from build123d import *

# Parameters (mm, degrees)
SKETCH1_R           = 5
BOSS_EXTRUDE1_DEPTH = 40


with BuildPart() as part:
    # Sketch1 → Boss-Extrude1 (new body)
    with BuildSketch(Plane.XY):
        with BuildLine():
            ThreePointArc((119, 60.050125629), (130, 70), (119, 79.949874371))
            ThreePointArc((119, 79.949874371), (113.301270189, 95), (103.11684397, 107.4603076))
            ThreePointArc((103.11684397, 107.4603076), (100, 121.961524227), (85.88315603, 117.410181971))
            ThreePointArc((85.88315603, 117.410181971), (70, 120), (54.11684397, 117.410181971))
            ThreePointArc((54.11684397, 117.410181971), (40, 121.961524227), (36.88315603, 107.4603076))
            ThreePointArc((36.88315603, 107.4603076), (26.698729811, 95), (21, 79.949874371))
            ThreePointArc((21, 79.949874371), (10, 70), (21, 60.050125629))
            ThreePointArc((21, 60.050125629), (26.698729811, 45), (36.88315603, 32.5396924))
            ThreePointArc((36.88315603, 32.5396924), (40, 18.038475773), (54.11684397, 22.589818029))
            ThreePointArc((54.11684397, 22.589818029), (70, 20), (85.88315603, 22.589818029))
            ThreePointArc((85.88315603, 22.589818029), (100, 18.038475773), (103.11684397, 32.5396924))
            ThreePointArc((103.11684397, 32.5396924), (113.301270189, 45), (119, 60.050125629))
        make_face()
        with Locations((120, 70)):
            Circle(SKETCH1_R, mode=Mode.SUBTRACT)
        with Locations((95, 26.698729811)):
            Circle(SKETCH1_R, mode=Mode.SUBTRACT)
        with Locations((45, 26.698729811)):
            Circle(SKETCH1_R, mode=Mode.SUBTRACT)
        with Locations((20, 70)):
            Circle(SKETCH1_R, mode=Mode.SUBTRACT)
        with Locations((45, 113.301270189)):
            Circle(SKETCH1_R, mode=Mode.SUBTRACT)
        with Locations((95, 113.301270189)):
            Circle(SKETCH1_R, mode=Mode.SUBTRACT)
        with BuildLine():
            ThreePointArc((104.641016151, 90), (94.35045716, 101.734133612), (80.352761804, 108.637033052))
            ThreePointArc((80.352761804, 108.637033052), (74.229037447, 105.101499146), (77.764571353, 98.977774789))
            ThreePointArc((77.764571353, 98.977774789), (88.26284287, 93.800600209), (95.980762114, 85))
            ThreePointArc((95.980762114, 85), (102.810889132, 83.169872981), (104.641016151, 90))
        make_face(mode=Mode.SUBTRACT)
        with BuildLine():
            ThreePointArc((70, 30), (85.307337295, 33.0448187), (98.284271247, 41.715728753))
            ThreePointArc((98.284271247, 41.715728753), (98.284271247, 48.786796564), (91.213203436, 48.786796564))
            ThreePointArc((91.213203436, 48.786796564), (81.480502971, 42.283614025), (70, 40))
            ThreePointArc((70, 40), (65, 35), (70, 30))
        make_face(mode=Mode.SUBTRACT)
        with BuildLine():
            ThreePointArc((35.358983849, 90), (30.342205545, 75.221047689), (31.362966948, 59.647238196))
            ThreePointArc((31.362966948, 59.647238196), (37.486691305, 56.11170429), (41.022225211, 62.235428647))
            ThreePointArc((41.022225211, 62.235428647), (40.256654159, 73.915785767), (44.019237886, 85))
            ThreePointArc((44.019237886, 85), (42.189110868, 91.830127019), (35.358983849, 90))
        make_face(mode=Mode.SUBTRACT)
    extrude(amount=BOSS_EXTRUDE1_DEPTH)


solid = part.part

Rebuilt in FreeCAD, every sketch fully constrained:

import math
import FreeCAD as App
import Part
import Sketcher

V = App.Vector

doc = App.newDocument("Part")
body = doc.addObject("PartDesign::Body", "Body")

sketch1 = doc.addObject("Sketcher::SketchObject", "Sketch")
body.addObject(sketch1)
sketch1.AttachmentSupport = (doc.XY_Plane, [""])
sketch1.MapMode = "FlatFace"
sketch1.addGeometry(Part.ArcOfCircle(Part.Circle(V(120, 70, 0), V(0, 0, 1), 10), math.radians(-96), math.radians(96)), False)
sketch1.addGeometry(Part.ArcOfCircle(Part.Circle(V(70, 70, 0), V(0, 0, 1), 50), math.radians(11), math.radians(49)), False)
sketch1.addGeometry(Part.ArcOfCircle(Part.Circle(V(95, 113.3, 0), V(0, 0, 1), 10), math.radians(-36), math.radians(156)), False)
sketch1.addGeometry(Part.ArcOfCircle(Part.Circle(V(70, 70, 0), V(0, 0, 1), 50), math.radians(71), math.radians(109)), False)
sketch1.addGeometry(Part.ArcOfCircle(Part.Circle(V(45, 113.3, 0), V(0, 0, 1), 10), math.radians(24), math.radians(216)), False)
sketch1.addGeometry(Part.ArcOfCircle(Part.Circle(V(70, 70, 0), V(0, 0, 1), 50), math.radians(131), math.radians(169)), False)
sketch1.addGeometry(Part.ArcOfCircle(Part.Circle(V(20, 70, 0), V(0, 0, 1), 10), math.radians(84), math.radians(276)), False)
sketch1.addGeometry(Part.ArcOfCircle(Part.Circle(V(70, 70, 0), V(0, 0, 1), 50), math.radians(-169), math.radians(-131)), False)
sketch1.addGeometry(Part.ArcOfCircle(Part.Circle(V(45, 26.7, 0), V(0, 0, 1), 10), math.radians(144), math.radians(336)), False)
sketch1.addGeometry(Part.ArcOfCircle(Part.Circle(V(70, 70, 0), V(0, 0, 1), 50), math.radians(-109), math.radians(-71)), False)
sketch1.addGeometry(Part.ArcOfCircle(Part.Circle(V(95, 26.7, 0), V(0, 0, 1), 10), math.radians(-156), math.radians(36)), False)
sketch1.addGeometry(Part.ArcOfCircle(Part.Circle(V(70, 70, 0), V(0, 0, 1), 50), math.radians(-49), math.radians(-11)), False)
sketch1.addGeometry(Part.Circle(V(45, 26.7, 0), V(0, 0, 1), 5), False)
sketch1.addGeometry(Part.Circle(V(95, 26.7, 0), V(0, 0, 1), 5), False)
sketch1.addGeometry(Part.ArcOfCircle(Part.Circle(V(70, 70, 0), V(0, 0, 1), 40), math.radians(-90), math.radians(-45)), False)
sketch1.addGeometry(Part.ArcOfCircle(Part.Circle(V(70, 35, 0), V(0, 0, 1), 5), math.radians(90), math.radians(270)), False)
sketch1.addGeometry(Part.ArcOfCircle(Part.Circle(V(70, 70, 0), V(0, 0, 1), 30), math.radians(-90), math.radians(-45)), False)
sketch1.addGeometry(Part.ArcOfCircle(Part.Circle(V(94.7, 45.3, 0), V(0, 0, 1), 5), math.radians(-45), math.radians(135)), False)
sketch1.addGeometry(Part.Circle(V(20, 70, 0), V(0, 0, 1), 5), False)
sketch1.addGeometry(Part.ArcOfCircle(Part.Circle(V(70, 70, 0), V(0, 0, 1), 40), math.radians(150), math.radians(195)), False)
sketch1.addGeometry(Part.ArcOfCircle(Part.Circle(V(39.7, 87.5, 0), V(0, 0, 1), 5), math.radians(-30), math.radians(150)), False)
sketch1.addGeometry(Part.ArcOfCircle(Part.Circle(V(70, 70, 0), V(0, 0, 1), 30), math.radians(150), math.radians(195)), False)
sketch1.addGeometry(Part.ArcOfCircle(Part.Circle(V(36.2, 60.9, 0), V(0, 0, 1), 5), math.radians(-165), math.radians(15)), False)
sketch1.addGeometry(Part.Circle(V(45, 113.3, 0), V(0, 0, 1), 5), False)
sketch1.addGeometry(Part.Circle(V(120, 70, 0), V(0, 0, 1), 5), False)
sketch1.addGeometry(Part.ArcOfCircle(Part.Circle(V(70, 70, 0), V(0, 0, 1), 40), math.radians(30), math.radians(75)), False)
sketch1.addGeometry(Part.ArcOfCircle(Part.Circle(V(100.3, 87.5, 0), V(0, 0, 1), 5), math.radians(-150), math.radians(30)), False)
sketch1.addGeometry(Part.ArcOfCircle(Part.Circle(V(70, 70, 0), V(0, 0, 1), 30), math.radians(30), math.radians(75)), False)
sketch1.addGeometry(Part.ArcOfCircle(Part.Circle(V(79.1, 103.8, 0), V(0, 0, 1), 5), math.radians(75), math.radians(255)), False)
sketch1.addGeometry(Part.Circle(V(95, 113.3, 0), V(0, 0, 1), 5), False)
sketch1.addConstraint(Sketcher.Constraint("Coincident", 0, 2, 1, 1))
sketch1.addConstraint(Sketcher.Constraint("Coincident", 1, 2, 2, 1))
sketch1.addConstraint(Sketcher.Constraint("Coincident", 2, 2, 3, 1))
sketch1.addConstraint(Sketcher.Constraint("Coincident", 3, 2, 4, 1))
sketch1.addConstraint(Sketcher.Constraint("Coincident", 4, 2, 5, 1))
sketch1.addConstraint(Sketcher.Constraint("Coincident", 5, 2, 6, 1))
sketch1.addConstraint(Sketcher.Constraint("Coincident", 6, 2, 7, 1))
sketch1.addConstraint(Sketcher.Constraint("Coincident", 7, 2, 8, 1))
sketch1.addConstraint(Sketcher.Constraint("Coincident", 8, 2, 9, 1))
sketch1.addConstraint(Sketcher.Constraint("Coincident", 9, 2, 10, 1))
sketch1.addConstraint(Sketcher.Constraint("Coincident", 10, 2, 11, 1))
sketch1.addConstraint(Sketcher.Constraint("Coincident", 11, 2, 0, 1))
sketch1.addConstraint(Sketcher.Constraint("Tangent", 14, 1, 15, 2))
sketch1.addConstraint(Sketcher.Constraint("Tangent", 15, 1, 16, 1))
sketch1.addConstraint(Sketcher.Constraint("Tangent", 16, 2, 17, 2))
sketch1.addConstraint(Sketcher.Constraint("Tangent", 17, 1, 14, 2))
sketch1.addConstraint(Sketcher.Constraint("Tangent", 19, 1, 20, 2))
sketch1.addConstraint(Sketcher.Constraint("Tangent", 20, 1, 21, 1))
sketch1.addConstraint(Sketcher.Constraint("Tangent", 21, 2, 22, 2))
sketch1.addConstraint(Sketcher.Constraint("Tangent", 22, 1, 19, 2))
sketch1.addConstraint(Sketcher.Constraint("Tangent", 25, 1, 26, 2))
sketch1.addConstraint(Sketcher.Constraint("Tangent", 26, 1, 27, 1))
sketch1.addConstraint(Sketcher.Constraint("Tangent", 27, 2, 28, 2))
sketch1.addConstraint(Sketcher.Constraint("Tangent", 28, 1, 25, 2))
sketch1.addConstraint(Sketcher.Constraint("Coincident", 3, 3, 1, 3))
sketch1.addConstraint(Sketcher.Constraint("Coincident", 5, 3, 1, 3))
sketch1.addConstraint(Sketcher.Constraint("Coincident", 7, 3, 1, 3))
sketch1.addConstraint(Sketcher.Constraint("Coincident", 9, 3, 1, 3))
sketch1.addConstraint(Sketcher.Constraint("Coincident", 11, 3, 1, 3))
sketch1.addConstraint(Sketcher.Constraint("Coincident", 12, 3, 8, 3))
sketch1.addConstraint(Sketcher.Constraint("Coincident", 13, 3, 10, 3))
sketch1.addConstraint(Sketcher.Constraint("Coincident", 14, 3, 1, 3))
sketch1.addConstraint(Sketcher.Constraint("Coincident", 16, 3, 1, 3))
sketch1.addConstraint(Sketcher.Constraint("Coincident", 18, 3, 6, 3))
sketch1.addConstraint(Sketcher.Constraint("Coincident", 19, 3, 1, 3))
sketch1.addConstraint(Sketcher.Constraint("Coincident", 21, 3, 1, 3))
sketch1.addConstraint(Sketcher.Constraint("Coincident", 23, 3, 4, 3))
sketch1.addConstraint(Sketcher.Constraint("Coincident", 24, 3, 0, 3))
sketch1.addConstraint(Sketcher.Constraint("Coincident", 25, 3, 1, 3))
sketch1.addConstraint(Sketcher.Constraint("Coincident", 27, 3, 1, 3))
sketch1.addConstraint(Sketcher.Constraint("Coincident", 29, 3, 2, 3))
sketch1.addConstraint(Sketcher.Constraint("Equal", 0, 2))
sketch1.addConstraint(Sketcher.Constraint("Equal", 1, 3))
sketch1.addConstraint(Sketcher.Constraint("Equal", 2, 4))
sketch1.addConstraint(Sketcher.Constraint("Equal", 3, 5))
sketch1.addConstraint(Sketcher.Constraint("Equal", 4, 6))
sketch1.addConstraint(Sketcher.Constraint("Equal", 5, 7))
sketch1.addConstraint(Sketcher.Constraint("Equal", 6, 8))
sketch1.addConstraint(Sketcher.Constraint("Equal", 7, 9))
sketch1.addConstraint(Sketcher.Constraint("Equal", 8, 10))
sketch1.addConstraint(Sketcher.Constraint("Equal", 9, 11))
sketch1.addConstraint(Sketcher.Constraint("Equal", 12, 13))
sketch1.addConstraint(Sketcher.Constraint("Equal", 13, 15))
sketch1.addConstraint(Sketcher.Constraint("Equal", 17, 18))
sketch1.addConstraint(Sketcher.Constraint("Equal", 14, 19))
sketch1.addConstraint(Sketcher.Constraint("Equal", 18, 20))
sketch1.addConstraint(Sketcher.Constraint("Equal", 22, 23))
sketch1.addConstraint(Sketcher.Constraint("Equal", 23, 24))
sketch1.addConstraint(Sketcher.Constraint("Equal", 19, 25))
sketch1.addConstraint(Sketcher.Constraint("Equal", 24, 26))
sketch1.addConstraint(Sketcher.Constraint("Equal", 28, 29))
sketch1.addConstraint(Sketcher.Constraint("Horizontal", 0, 3, 1, 3))
sketch1.addConstraint(Sketcher.Constraint("Horizontal", 2, 3, 4, 3))
sketch1.addConstraint(Sketcher.Constraint("Horizontal", 5, 3, 6, 3))
sketch1.addConstraint(Sketcher.Constraint("Horizontal", 8, 3, 10, 3))
sketch1.addConstraint(Sketcher.Constraint("Horizontal", 20, 3, 26, 3))
sketch1.addConstraint(Sketcher.Constraint("Horizontal", 2, 2, 3, 2))
sketch1.addConstraint(Sketcher.Constraint("Horizontal", 0, 2, 5, 2))
sketch1.addConstraint(Sketcher.Constraint("Horizontal", 8, 2, 9, 2))
sketch1.addConstraint(Sketcher.Constraint("Vertical", 4, 3, 8, 3))
sketch1.addConstraint(Sketcher.Constraint("Vertical", 14, 3, 15, 3))
sketch1.addConstraint(Sketcher.Constraint("Vertical", 4, 2, 7, 2))
sketch1.addConstraint(Sketcher.Constraint("Diameter", 12, 10.0))
sketch1.addConstraint(Sketcher.Constraint("Radius", 0, 10.0))
sketch1.addConstraint(Sketcher.Constraint("Radius", 1, 50.0))
sketch1.addConstraint(Sketcher.Constraint("Radius", 14, 40.0))
sketch1.addConstraint(Sketcher.Constraint("DistanceX", -1, 1, 0, 3, 120.0))
sketch1.addConstraint(Sketcher.Constraint("DistanceY", -1, 1, 0, 3, 70.0))
sketch1.addConstraint(Sketcher.Constraint("DistanceX", -1, 1, 1, 3, 70.0))
sketch1.addConstraint(Sketcher.Constraint("DistanceX", -1, 1, 2, 3, 95.0))
sketch1.addConstraint(Sketcher.Constraint("DistanceY", -1, 1, 19, 1, 90.0))
sketch1.addConstraint(Sketcher.Constraint("DistanceY", 10, 3, 17, 1, 15.016999))
sketch1.addConstraint(Sketcher.Constraint("DistanceY", -1, 1, 2, 3, 113.30127))
sketch1.addConstraint(Sketcher.Constraint("DistanceY", -1, 1, 21, 2, 62.235429))
sketch1.addConstraint(Sketcher.Constraint("DistanceX", -1, 1, 27, 2, 77.764571))
pad1 = doc.addObject("PartDesign::Pad", "Pad")
body.addObject(pad1)
pad1.Profile = sketch1
pad1.Length = 40

doc.recompute()
